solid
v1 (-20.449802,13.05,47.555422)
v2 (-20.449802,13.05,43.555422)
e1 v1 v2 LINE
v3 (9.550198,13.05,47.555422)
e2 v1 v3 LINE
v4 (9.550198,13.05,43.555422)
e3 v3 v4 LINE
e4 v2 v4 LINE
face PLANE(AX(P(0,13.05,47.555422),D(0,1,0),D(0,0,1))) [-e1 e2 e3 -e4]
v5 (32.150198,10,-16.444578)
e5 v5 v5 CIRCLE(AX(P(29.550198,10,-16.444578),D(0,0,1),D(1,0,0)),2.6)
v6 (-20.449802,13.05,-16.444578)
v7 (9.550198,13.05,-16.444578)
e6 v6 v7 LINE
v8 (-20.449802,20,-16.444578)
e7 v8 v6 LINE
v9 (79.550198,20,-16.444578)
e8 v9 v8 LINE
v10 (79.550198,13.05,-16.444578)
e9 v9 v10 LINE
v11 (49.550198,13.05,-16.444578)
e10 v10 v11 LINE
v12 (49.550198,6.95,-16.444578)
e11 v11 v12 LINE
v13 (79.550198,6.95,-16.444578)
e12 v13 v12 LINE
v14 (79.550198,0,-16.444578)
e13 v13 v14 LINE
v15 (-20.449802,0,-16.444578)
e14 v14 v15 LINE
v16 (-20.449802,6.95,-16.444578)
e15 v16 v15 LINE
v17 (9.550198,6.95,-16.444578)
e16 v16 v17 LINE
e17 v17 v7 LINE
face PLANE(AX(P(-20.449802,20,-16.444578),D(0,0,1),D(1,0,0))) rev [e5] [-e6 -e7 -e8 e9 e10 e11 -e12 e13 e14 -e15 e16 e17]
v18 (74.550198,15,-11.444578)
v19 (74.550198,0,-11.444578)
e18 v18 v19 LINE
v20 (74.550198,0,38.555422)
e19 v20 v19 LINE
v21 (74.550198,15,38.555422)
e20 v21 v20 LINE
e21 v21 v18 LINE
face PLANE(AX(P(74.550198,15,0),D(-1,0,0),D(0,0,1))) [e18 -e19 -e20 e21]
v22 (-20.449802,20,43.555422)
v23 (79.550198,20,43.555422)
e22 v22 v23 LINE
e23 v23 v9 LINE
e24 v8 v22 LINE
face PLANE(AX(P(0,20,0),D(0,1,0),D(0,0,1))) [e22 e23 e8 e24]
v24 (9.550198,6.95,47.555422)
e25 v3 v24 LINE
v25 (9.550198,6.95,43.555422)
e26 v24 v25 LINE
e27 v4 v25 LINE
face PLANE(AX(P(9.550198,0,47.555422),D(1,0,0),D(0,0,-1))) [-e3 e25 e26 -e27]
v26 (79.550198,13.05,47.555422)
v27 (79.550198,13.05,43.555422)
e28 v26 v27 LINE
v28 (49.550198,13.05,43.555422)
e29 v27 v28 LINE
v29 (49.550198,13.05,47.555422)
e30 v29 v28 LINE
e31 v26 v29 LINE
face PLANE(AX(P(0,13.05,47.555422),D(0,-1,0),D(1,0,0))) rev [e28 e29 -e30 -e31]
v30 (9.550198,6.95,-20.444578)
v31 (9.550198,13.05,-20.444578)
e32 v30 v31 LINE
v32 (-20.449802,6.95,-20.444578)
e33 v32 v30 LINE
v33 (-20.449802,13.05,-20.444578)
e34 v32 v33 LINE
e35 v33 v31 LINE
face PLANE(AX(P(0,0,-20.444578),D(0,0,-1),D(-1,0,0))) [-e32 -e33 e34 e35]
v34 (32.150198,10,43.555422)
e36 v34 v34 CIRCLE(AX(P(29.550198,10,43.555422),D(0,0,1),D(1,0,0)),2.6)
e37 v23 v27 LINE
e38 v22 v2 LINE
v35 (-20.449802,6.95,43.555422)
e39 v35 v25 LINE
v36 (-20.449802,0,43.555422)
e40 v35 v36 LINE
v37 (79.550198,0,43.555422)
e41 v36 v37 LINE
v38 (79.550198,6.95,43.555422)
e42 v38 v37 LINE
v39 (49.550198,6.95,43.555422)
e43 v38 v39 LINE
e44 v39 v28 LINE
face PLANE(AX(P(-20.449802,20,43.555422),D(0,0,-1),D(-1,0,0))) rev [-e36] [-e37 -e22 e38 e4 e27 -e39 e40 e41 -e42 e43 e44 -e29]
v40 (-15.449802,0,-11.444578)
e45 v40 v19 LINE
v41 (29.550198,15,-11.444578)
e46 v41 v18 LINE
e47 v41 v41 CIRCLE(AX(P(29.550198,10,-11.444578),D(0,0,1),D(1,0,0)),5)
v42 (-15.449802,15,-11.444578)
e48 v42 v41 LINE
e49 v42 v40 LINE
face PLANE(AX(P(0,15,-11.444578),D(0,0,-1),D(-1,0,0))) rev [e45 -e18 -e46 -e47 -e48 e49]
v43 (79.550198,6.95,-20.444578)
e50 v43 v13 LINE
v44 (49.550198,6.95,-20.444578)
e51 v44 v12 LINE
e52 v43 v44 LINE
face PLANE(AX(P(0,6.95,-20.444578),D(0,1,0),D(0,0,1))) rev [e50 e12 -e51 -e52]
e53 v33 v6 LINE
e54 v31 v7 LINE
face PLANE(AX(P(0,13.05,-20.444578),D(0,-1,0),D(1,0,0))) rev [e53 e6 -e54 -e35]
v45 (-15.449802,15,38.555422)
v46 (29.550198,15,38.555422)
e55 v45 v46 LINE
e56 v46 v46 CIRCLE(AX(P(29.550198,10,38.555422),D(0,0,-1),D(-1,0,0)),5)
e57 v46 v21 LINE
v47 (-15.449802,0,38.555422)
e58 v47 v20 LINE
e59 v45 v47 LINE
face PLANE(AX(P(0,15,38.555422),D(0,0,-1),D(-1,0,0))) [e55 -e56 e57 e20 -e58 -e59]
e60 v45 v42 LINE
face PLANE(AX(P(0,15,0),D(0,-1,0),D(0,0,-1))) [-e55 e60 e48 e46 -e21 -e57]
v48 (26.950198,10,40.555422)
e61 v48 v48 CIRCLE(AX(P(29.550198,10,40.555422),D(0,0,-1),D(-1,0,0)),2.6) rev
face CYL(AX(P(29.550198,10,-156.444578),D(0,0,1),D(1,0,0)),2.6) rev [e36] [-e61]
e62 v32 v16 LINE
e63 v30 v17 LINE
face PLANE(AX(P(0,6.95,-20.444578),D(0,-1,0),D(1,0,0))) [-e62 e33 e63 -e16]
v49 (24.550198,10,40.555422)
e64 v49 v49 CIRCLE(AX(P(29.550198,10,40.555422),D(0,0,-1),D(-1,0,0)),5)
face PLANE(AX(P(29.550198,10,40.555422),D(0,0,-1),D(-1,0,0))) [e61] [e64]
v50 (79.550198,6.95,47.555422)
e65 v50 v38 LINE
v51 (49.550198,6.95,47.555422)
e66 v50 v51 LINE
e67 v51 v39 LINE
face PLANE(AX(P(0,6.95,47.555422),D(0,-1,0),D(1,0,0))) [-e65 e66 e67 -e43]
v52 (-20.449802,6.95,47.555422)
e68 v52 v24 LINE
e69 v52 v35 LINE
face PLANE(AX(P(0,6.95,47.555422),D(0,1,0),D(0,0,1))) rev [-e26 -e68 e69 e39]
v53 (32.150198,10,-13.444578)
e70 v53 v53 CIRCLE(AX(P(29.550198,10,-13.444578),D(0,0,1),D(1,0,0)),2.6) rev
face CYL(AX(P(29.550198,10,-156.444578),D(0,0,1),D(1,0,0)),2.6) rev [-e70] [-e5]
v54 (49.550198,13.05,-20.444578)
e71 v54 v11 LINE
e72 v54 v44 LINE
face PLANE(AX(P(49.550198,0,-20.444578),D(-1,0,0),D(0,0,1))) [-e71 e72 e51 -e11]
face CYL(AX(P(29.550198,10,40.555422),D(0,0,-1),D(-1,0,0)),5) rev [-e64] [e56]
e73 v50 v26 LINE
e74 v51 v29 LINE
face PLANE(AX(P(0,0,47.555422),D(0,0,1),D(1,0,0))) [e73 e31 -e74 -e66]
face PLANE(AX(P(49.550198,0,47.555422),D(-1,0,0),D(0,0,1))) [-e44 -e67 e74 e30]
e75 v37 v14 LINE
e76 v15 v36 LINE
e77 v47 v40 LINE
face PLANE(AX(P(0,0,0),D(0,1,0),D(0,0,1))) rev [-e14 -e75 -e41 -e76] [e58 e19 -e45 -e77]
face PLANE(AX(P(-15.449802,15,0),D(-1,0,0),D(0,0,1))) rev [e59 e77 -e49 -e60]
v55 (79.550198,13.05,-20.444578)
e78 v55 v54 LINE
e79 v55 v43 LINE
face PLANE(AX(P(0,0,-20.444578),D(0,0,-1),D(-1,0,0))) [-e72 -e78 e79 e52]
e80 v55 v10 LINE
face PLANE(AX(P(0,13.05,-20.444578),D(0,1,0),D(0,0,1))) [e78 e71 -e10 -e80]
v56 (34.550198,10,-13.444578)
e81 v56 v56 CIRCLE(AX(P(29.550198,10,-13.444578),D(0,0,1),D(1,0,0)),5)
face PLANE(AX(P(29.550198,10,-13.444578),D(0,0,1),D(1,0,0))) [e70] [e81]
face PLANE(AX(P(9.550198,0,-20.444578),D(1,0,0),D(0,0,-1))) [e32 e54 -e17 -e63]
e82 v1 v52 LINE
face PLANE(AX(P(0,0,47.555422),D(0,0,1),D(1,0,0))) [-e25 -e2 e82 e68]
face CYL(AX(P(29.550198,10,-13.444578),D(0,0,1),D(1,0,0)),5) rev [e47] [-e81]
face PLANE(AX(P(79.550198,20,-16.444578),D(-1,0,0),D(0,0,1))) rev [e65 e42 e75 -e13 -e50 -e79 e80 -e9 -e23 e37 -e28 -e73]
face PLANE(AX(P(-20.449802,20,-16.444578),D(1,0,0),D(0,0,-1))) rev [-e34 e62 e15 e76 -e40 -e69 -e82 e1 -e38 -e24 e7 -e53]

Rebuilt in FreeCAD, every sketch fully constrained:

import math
import FreeCAD as App
import Part
import Sketcher


def add_polygon(sketch, points):
    """Adds a closed chain of lines whose ends are joined by coincident constraints."""
    first, n = sketch.GeometryCount, len(points)
    for a, b in zip(points, points[1:] + points[:1]):
        sketch.addGeometry(Part.LineSegment(App.Vector(*a, 0), App.Vector(*b, 0)), False)
    for i in range(n):
        sketch.addConstraint(Sketcher.Constraint("Coincident", first + i, 2, first + (i + 1) % n, 1))

doc = App.newDocument("Part")
body = doc.addObject("PartDesign::Body", "Body")

# Sketch on XZ plane
sketch1 = doc.addObject("Sketcher::SketchObject", "Sketch")
body.addObject(sketch1)
sketch1.AttachmentSupport = (doc.XZ_Plane, [""])
sketch1.MapMode = "FlatFace"
add_polygon(sketch1, [(-20, -16), (-20, 44), (80, 44), (80, -16)])  # lines 0-3
sketch1.addConstraint(Sketcher.Constraint("Vertical", 0))
sketch1.addConstraint(Sketcher.Constraint("Horizontal", 1))
sketch1.addConstraint(Sketcher.Constraint("Vertical", 2))
sketch1.addConstraint(Sketcher.Constraint("Horizontal", 3))
sketch1.addConstraint(Sketcher.Constraint("DistanceX", 1, 1, 1, 2, 100.0))
sketch1.addConstraint(Sketcher.Constraint("DistanceY", 0, 1, 0, 2, 60.0))
sketch1.addConstraint(Sketcher.Constraint("DistanceX", 0, 2, -1, 1, 20.449802))
sketch1.addConstraint(Sketcher.Constraint("DistanceY", -1, 1, 0, 2, 43.555422))
pad1 = doc.addObject("PartDesign::Pad", "Pad")
body.addObject(pad1)
pad1.Profile = sketch1
pad1.Length = 20
pad1.Reversed = True

# Sketch on XZ plane
sketch2 = doc.addObject("Sketcher::SketchObject", "Sketch001")
body.addObject(sketch2)
sketch2.AttachmentSupport = (doc.XZ_Plane, [""])
sketch2.MapMode = "FlatFace"
add_polygon(sketch2, [(-15, 39), (-15, -11), (75, -11), (75, 39)])  # lines 0-3
sketch2.addConstraint(Sketcher.Constraint("Vertical", 0))
sketch2.addConstraint(Sketcher.Constraint("Horizontal", 1))
sketch2.addConstraint(Sketcher.Constraint("Vertical", 2))
sketch2.addConstraint(Sketcher.Constraint("Horizontal", 3))
sketch2.addConstraint(Sketcher.Constraint("DistanceX", 1, 1, 1, 2, 90.0))
sketch2.addConstraint(Sketcher.Constraint("DistanceY", 0, 2, 0, 1, 50.0))
sketch2.addConstraint(Sketcher.Constraint("DistanceX", 0, 2, -1, 1, 15.449802))
sketch2.addConstraint(Sketcher.Constraint("DistanceY", 0, 2, -1, 1, 11.444578))
pocket1 = doc.addObject("PartDesign::Pocket", "Pocket")
body.addObject(pocket1)
pocket1.Profile = sketch2
pocket1.Length = 15

# Sketch on XY plane
sketch3 = doc.addObject("Sketcher::SketchObject", "Sketch002")
body.addObject(sketch3)
sketch3.AttachmentSupport = (doc.XY_Plane, [""])
sketch3.MapMode = "FlatFace"
sketch3.AttachmentOffset = App.Placement(App.Vector(0, 0, 43.555422), App.Rotation())
sketch3.addGeometry(Part.ArcOfCircle(Part.Circle(App.Vector(29.6, 10, 0), App.Vector(0, 0, 1), 2.6), math.radians(0), math.radians(90)), False)
sketch3.addGeometry(Part.ArcOfCircle(Part.Circle(App.Vector(29.6, 10, 0), App.Vector(0, 0, 1), 2.6), math.radians(90), math.radians(270)), False)
sketch3.addGeometry(Part.ArcOfCircle(Part.Circle(App.Vector(29.6, 10, 0), App.Vector(0, 0, 1), 2.6), math.radians(-90), math.radians(0)), False)
sketch3.addConstraint(Sketcher.Constraint("Tangent", 0, 2, 1, 1))
sketch3.addConstraint(Sketcher.Constraint("Tangent", 1, 2, 2, 1))
sketch3.addConstraint(Sketcher.Constraint("Tangent", 2, 2, 0, 1))
sketch3.addConstraint(Sketcher.Constraint("Horizontal", 1, 3, 2, 2))
sketch3.addConstraint(Sketcher.Constraint("Vertical", 2, 3, 0, 2))
sketch3.addConstraint(Sketcher.Constraint("Vertical", 0, 2, 1, 2))
sketch3.addConstraint(Sketcher.Constraint("Radius", 0, 2.6))
sketch3.addConstraint(Sketcher.Constraint("DistanceY", -1, 1, 0, 3, 10.0))
sketch3.addConstraint(Sketcher.Constraint("DistanceX", -1, 1, 0, 3, 29.550198))
pocket2 = doc.addObject("PartDesign::Pocket", "Pocket001")
body.addObject(pocket2)
pocket2.Profile = sketch3
pocket2.Length = 200

# Sketch on XY plane
sketch4 = doc.addObject("Sketcher::SketchObject", "Sketch003")
body.addObject(sketch4)
sketch4.AttachmentSupport = (doc.XY_Plane, [""])
sketch4.MapMode = "FlatFace"
sketch4.AttachmentOffset = App.Placement(App.Vector(0, 0, -11.444578), App.Rotation())
sketch4.addGeometry(Part.Circle(App.Vector(30, 10, 0), App.Vector(0, 0, 1), 5), False)
sketch4.addConstraint(Sketcher.Constraint("Diameter", 0, 10.0))
sketch4.addConstraint(Sketcher.Constraint("DistanceY", -1, 1, 0, 3, 10.0))
sketch4.addConstraint(Sketcher.Constraint("DistanceX", -1, 1, 0, 3, 29.550198))
pocket3 = doc.addObject("PartDesign::Pocket", "Pocket002")
body.addObject(pocket3)
pocket3.Profile = sketch4
pocket3.Length = 2

# Sketch on XY plane
sketch5 = doc.addObject("Sketcher::SketchObject", "Sketch004")
body.addObject(sketch5)
sketch5.AttachmentSupport = (doc.XY_Plane, [""])
sketch5.MapMode = "FlatFace"
sketch5.AttachmentOffset = App.Placement(App.Vector(0, 0, 40.555422), App.Rotation())
sketch5.addGeometry(Part.Circle(App.Vector(30, 10, 0), App.Vector(0, 0, 1), 5), False)
sketch5.addConstraint(Sketcher.Constraint("Diameter", 0, 10.0))
sketch5.addConstraint(Sketcher.Constraint("DistanceY", -1, 1, 0, 3, 10.0))
sketch5.addConstraint(Sketcher.Constraint("DistanceX", -1, 1, 0, 3, 29.550198))
pocket4 = doc.addObject("PartDesign::Pocket", "Pocket003")
body.addObject(pocket4)
pocket4.Profile = sketch5
pocket4.Length = 2

# Sketch on XY plane
sketch6 = doc.addObject("Sketcher::SketchObject", "Sketch005")
body.addObject(sketch6)
sketch6.AttachmentSupport = (doc.XY_Plane, [""])
sketch6.MapMode = "FlatFace"
sketch6.AttachmentOffset = App.Placement(App.Vector(0, 0, -16.444578), App.Rotation())
add_polygon(sketch6, [(10, 7), (-20, 7), (-20, 13), (10, 13)])  # lines 0-3
add_polygon(sketch6, [(80, 7), (50, 7), (50, 13), (80, 13)])  # lines 4-7
sketch6.addConstraint(Sketcher.Constraint("Horizontal", 0))
sketch6.addConstraint(Sketcher.Constraint("Vertical", 1))
sketch6.addConstraint(Sketcher.Constraint("Horizontal", 2))
sketch6.addConstraint(Sketcher.Constraint("Vertical", 3))
sketch6.addConstraint(Sketcher.Constraint("Horizontal", 4))
sketch6.addConstraint(Sketcher.Constraint("Vertical", 5))
sketch6.addConstraint(Sketcher.Constraint("Horizontal", 6))
sketch6.addConstraint(Sketcher.Constraint("Vertical", 7))
sketch6.addConstraint(Sketcher.Constraint("Horizontal", 3, 2, 4, 2))
sketch6.addConstraint(Sketcher.Constraint("Horizontal", 2, 2, 5, 2))
sketch6.addConstraint(Sketcher.Constraint("Equal", 2, 4))
sketch6.addConstraint(Sketcher.Constraint("DistanceX", 0, 2, 0, 1, 30.0))
sketch6.addConstraint(Sketcher.Constraint("DistanceY", 1, 1, 1, 2, 6.1))
sketch6.addConstraint(Sketcher.Constraint("DistanceX", 3, 2, 4, 2, 40.0))
sketch6.addConstraint(Sketcher.Constraint("DistanceY", -1, 1, 0, 2, 6.95))
sketch6.addConstraint(Sketcher.Constraint("DistanceX", 0, 2, -1, 1, 20.449802))
pad2 = doc.addObject("PartDesign::Pad", "Pad001")
body.addObject(pad2)
pad2.Profile = sketch6
pad2.Length = 4
pad2.Reversed = True

# Sketch on XY plane
sketch7 = doc.addObject("Sketcher::SketchObject", "Sketch006")
body.addObject(sketch7)
sketch7.AttachmentSupport = (doc.XY_Plane, [""])
sketch7.MapMode = "FlatFace"
sketch7.AttachmentOffset = App.Placement(App.Vector(0, 0, 43.555422), App.Rotation())
add_polygon(sketch7, [(-20, 13), (-20, 7), (10, 7), (10, 13)])  # lines 0-3
add_polygon(sketch7, [(50, 13), (50, 7), (80, 7), (80, 13)])  # lines 4-7
sketch7.addConstraint(Sketcher.Constraint("Vertical", 0))
sketch7.addConstraint(Sketcher.Constraint("Horizontal", 1))
sketch7.addConstraint(Sketcher.Constraint("Vertical", 2))
sketch7.addConstraint(Sketcher.Constraint("Horizontal", 3))
sketch7.addConstraint(Sketcher.Constraint("Vertical", 4))
sketch7.addConstraint(Sketcher.Constraint("Horizontal", 5))
sketch7.addConstraint(Sketcher.Constraint("Vertical", 6))
sketch7.addConstraint(Sketcher.Constraint("Horizontal", 7))
sketch7.addConstraint(Sketcher.Constraint("Horizontal", 1, 2, 4, 2))
sketch7.addConstraint(Sketcher.Constraint("Horizontal", 3, 2, 6, 2))
sketch7.addConstraint(Sketcher.Constraint("Equal", 3, 5))
sketch7.addConstraint(Sketcher.Constraint("DistanceX", 1, 1, 1, 2, 30.0))
sketch7.addConstraint(Sketcher.Constraint("DistanceY", 0, 2, 0, 1, 6.1))
sketch7.addConstraint(Sketcher.Constraint("DistanceX", 1, 2, 4, 2, 40.0))
sketch7.addConstraint(Sketcher.Constraint("DistanceY", -1, 1, 0, 2, 6.95))
sketch7.addConstraint(Sketcher.Constraint("DistanceX", 0, 2, -1, 1, 20.449802))
pad3 = doc.addObject("PartDesign::Pad", "Pad002")
body.addObject(pad3)
pad3.Profile = sketch7
pad3.Length = 4

doc.recompute()
